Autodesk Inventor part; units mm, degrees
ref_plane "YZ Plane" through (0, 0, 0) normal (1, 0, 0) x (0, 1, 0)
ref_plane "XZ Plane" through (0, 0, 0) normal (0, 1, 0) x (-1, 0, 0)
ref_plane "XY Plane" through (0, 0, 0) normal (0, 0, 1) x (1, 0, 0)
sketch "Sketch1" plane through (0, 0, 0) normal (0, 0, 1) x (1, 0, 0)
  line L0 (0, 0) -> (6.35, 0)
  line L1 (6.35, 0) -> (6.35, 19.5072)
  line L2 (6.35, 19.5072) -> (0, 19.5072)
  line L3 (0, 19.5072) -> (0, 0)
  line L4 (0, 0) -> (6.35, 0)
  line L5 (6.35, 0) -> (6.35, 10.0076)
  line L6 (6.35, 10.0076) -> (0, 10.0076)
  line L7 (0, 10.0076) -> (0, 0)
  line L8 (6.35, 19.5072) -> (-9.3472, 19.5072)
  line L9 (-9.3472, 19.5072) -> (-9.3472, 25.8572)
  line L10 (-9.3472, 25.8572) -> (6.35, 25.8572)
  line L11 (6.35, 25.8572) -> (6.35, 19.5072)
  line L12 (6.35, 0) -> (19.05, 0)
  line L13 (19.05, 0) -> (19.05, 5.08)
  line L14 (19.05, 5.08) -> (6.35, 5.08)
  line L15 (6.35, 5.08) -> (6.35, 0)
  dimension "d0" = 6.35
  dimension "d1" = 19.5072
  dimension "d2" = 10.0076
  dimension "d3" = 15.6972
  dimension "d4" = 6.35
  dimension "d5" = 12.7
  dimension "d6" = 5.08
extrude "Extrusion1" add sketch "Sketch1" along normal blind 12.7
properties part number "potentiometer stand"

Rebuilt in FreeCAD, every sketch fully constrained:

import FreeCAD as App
import Part
import Sketcher
from FreeCAD import Vector
Q = App.Units.Quantity


def add_polygon(sketch, points):
    """Adds a closed chain of lines whose ends are joined by coincident constraints."""
    first, n = sketch.GeometryCount, len(points)
    for a, b in zip(points, points[1:] + points[:1]):
        sketch.addGeometry(Part.LineSegment(App.Vector(*a, 0), App.Vector(*b, 0)), False)
    for i in range(n):
        sketch.addConstraint(Sketcher.Constraint("Coincident", first + i, 2, first + (i + 1) % n, 1))

doc = App.newDocument("Part")
body = doc.addObject("PartDesign::Body", "Body")

# Sketch on XY plane
sketch1 = doc.addObject("Sketcher::SketchObject", "Sketch")
body.addObject(sketch1)
sketch1.AttachmentSupport = (doc.XY_Plane, [""])
sketch1.MapMode = "FlatFace"
add_polygon(sketch1, [(0, 0), (19, 0), (19, 5), (6, 5), (6, 26), (-9, 26), (-9, 20), (0, 20)])  # lines 0-7
sketch1.addConstraint(Sketcher.Constraint("Horizontal", 0))
sketch1.addConstraint(Sketcher.Constraint("Vertical", 1))
sketch1.addConstraint(Sketcher.Constraint("Horizontal", 2))
sketch1.addConstraint(Sketcher.Constraint("Vertical", 3))
sketch1.addConstraint(Sketcher.Constraint("Horizontal", 4))
sketch1.addConstraint(Sketcher.Constraint("Vertical", 5))
sketch1.addConstraint(Sketcher.Constraint("Horizontal", 6))
sketch1.addConstraint(Sketcher.Constraint("Vertical", 7))
sketch1.addConstraint(Sketcher.Constraint("Coincident", 7, 2, -1, 1))
sketch1.addConstraint(Sketcher.Constraint("DistanceX", 2, 2, 2, 1, Q("0.5 in")))
sketch1.addConstraint(Sketcher.Constraint("DistanceY", 1, 1, 1, 2, Q("0.2 in")))
sketch1.addConstraint(Sketcher.Constraint("DistanceY", 5, 2, 5, 1, Q("0.25 in")))
sketch1.addConstraint(Sketcher.Constraint("DistanceX", 4, 2, 4, 1, Q("0.618 in")))
sketch1.addConstraint(Sketcher.Constraint("DistanceY", 7, 2, 7, 1, Q("0.768 in")))
sketch1.addConstraint(Sketcher.Constraint("DistanceX", -1, 1, 2, 2, Q("0.25 in")))
pad1 = doc.addObject("PartDesign::Pad", "Pad")
body.addObject(pad1)
pad1.Profile = sketch1
pad1.Length = Q("0.5 in")

doc.recompute()
